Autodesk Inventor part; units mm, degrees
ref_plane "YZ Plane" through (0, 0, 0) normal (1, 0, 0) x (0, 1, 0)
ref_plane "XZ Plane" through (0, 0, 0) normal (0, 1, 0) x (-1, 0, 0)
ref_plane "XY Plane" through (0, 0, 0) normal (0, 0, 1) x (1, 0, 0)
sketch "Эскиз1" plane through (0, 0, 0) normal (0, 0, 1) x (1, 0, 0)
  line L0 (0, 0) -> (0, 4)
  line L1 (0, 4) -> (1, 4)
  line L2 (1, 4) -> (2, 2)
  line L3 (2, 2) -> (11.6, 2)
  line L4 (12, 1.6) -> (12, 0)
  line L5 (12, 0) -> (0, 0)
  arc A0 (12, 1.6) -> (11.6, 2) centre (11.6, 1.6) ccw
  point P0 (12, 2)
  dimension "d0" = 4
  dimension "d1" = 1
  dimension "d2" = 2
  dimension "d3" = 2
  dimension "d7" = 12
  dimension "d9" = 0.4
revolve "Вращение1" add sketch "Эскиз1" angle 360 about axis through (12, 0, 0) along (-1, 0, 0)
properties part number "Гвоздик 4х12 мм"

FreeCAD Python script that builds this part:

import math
import FreeCAD as App
import Part
import Sketcher
from FreeCAD import Vector
Q = App.Units.Quantity

doc = App.newDocument("Part")
body = doc.addObject("PartDesign::Body", "Body")

sketch1 = doc.addObject("Sketcher::SketchObject", "Sketch")
body.addObject(sketch1)
sketch1.AttachmentSupport = (doc.XY_Plane, [""])
sketch1.MapMode = "FlatFace"
sketch1.addGeometry([
    Part.LineSegment(Vector(0, 4, 0), Vector(0, 0, 0)),
    Part.LineSegment(Vector(0, 0, 0), Vector(12, 0, 0)),
    Part.LineSegment(Vector(12, 0, 0), Vector(12, 1.6, 0)),
    Part.ArcOfCircle(Part.Circle(Vector(11.6, 1.6, 0), Vector(0, 0, 1), 0.4), math.radians(0), math.radians(90)),
    Part.LineSegment(Vector(11.6, 2, 0), Vector(2, 2, 0)),
    Part.LineSegment(Vector(2, 2, 0), Vector(1, 4, 0)),
    Part.LineSegment(Vector(1, 4, 0), Vector(0, 4, 0)),
], False)
sketch1.addConstraint([
    Sketcher.Constraint("Coincident", 0, 2, 1, 1),
    Sketcher.Constraint("Coincident", 1, 2, 2, 1),
    Sketcher.Constraint("Tangent", 2, 2, 3, 1),
    Sketcher.Constraint("Tangent", 3, 2, 4, 1),
    Sketcher.Constraint("Coincident", 4, 2, 5, 1),
    Sketcher.Constraint("Coincident", 5, 2, 6, 1),
    Sketcher.Constraint("Coincident", 6, 2, 0, 1),
    Sketcher.Constraint("Vertical", 0),
    Sketcher.Constraint("Horizontal", 1),
    Sketcher.Constraint("Vertical", 2),
    Sketcher.Constraint("Horizontal", 4),
    Sketcher.Constraint("Horizontal", 6),
    Sketcher.Constraint("Coincident", 0, 2, -1, 1),
    Sketcher.Constraint("Radius", 3, Q("0.4 mm")),
    Sketcher.Constraint("DistanceX", 1, 1, 1, 2, Q("12 mm")),
    Sketcher.Constraint("DistanceX", 6, 2, 6, 1, Q("1 mm")),
    Sketcher.Constraint("DistanceY", 0, 2, 0, 1, Q("4 mm")),
    Sketcher.Constraint("DistanceY", -1, 1, 3, 2, Q("2 mm")),
    Sketcher.Constraint("DistanceX", -1, 1, 4, 2, Q("2 mm")),
])
revolution = doc.addObject("PartDesign::Revolution", "Revolution")
body.addObject(revolution)
revolution.Profile = sketch1
revolution.ReferenceAxis = (sketch1, ["H_Axis"])
revolution.Angle = 360

doc.recompute()
